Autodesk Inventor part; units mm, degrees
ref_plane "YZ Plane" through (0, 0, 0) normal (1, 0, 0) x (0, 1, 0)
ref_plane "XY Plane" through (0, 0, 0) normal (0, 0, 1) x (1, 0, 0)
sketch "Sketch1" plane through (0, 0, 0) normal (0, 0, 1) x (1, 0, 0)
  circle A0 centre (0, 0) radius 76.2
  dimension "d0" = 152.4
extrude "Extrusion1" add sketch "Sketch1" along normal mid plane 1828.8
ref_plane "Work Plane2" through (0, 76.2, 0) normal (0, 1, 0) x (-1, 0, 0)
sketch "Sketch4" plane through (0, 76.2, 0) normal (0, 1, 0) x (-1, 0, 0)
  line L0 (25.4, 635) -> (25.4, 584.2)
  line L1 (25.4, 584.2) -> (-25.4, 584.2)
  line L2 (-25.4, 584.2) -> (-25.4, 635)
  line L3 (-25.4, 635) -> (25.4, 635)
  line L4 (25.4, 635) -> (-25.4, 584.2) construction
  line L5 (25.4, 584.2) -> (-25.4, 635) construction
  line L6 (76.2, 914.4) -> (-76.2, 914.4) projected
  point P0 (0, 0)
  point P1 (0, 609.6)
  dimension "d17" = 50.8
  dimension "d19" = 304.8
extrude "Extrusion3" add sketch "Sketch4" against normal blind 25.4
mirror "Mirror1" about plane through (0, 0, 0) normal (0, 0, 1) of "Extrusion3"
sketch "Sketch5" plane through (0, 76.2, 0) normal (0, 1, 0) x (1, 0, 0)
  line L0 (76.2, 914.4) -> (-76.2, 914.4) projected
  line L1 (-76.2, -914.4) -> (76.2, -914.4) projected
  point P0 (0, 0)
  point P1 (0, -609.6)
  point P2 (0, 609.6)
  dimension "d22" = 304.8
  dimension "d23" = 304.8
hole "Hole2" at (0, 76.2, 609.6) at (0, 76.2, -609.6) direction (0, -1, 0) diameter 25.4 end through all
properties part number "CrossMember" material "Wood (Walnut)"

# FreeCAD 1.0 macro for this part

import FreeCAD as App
import Part
import Sketcher
Q = App.Units.Quantity

doc = App.newDocument("Part")
params = doc.addObject("Spreadsheet::Sheet", "Params")
for row, (alias, value) in enumerate([
    ("sketch1_diameter", "6 in"),
    ("pad1_length", "72 in"),
    ("sketch2_width", "2 in"),
    ("pad2_length", "1 in"),
    ("sketch3_diameter", "1 in"),
    ("hole_diameter", "1 in"),
], start=1):
    params.set(f"A{row}", alias)
    params.set(f"B{row}", "=" + value)
    params.setAlias(f"B{row}", alias)

body = doc.addObject("PartDesign::Body", "Body")

sketch1 = body.newObject("Sketcher::SketchObject", "Sketch")
sketch1.AttachmentSupport = (doc.getObject("XY_Plane"), [""])
sketch1.MapMode = "FlatFace"
sketch1.addGeometry(Part.Circle(App.Vector(0, 0, 0), App.Vector(0, 0, 1), 76), False)
sketch1.addConstraint([
    Sketcher.Constraint("Coincident", 0, 3, -1, 1),
    Sketcher.Constraint("Diameter", 0, Q("6 in")),
])
sketch1.setExpression("Constraints[1]", "Params.sketch1_diameter")
pad1 = body.newObject("PartDesign::Pad", "Pad")
pad1.Profile = sketch1
pad1.setExpression("Length", "Params.pad1_length")
pad1.Midplane = True

sketch2 = body.newObject("Sketcher::SketchObject", "Sketch001")
sketch2.AttachmentSupport = (doc.getObject("XZ_Plane"), [""])
sketch2.MapMode = "FlatFace"
sketch2.AttachmentOffset = App.Placement(App.Vector(0, 0, -3 * 25.4), App.Rotation())
sketch2.addGeometry([
    Part.LineSegment(App.Vector(-25, 584, 0), App.Vector(-25, 635, 0)),
    Part.LineSegment(App.Vector(-25, 635, 0), App.Vector(25, 635, 0)),
    Part.LineSegment(App.Vector(25, 635, 0), App.Vector(25, 584, 0)),
    Part.LineSegment(App.Vector(25, 584, 0), App.Vector(-25, 584, 0)),
], False)
sketch2.addConstraint([
    Sketcher.Constraint("Coincident", 0, 2, 1, 1),
    Sketcher.Constraint("Coincident", 1, 2, 2, 1),
    Sketcher.Constraint("Coincident", 2, 2, 3, 1),
    Sketcher.Constraint("Coincident", 3, 2, 0, 1),
    Sketcher.Constraint("Vertical", 0),
    Sketcher.Constraint("Horizontal", 1),
    Sketcher.Constraint("Vertical", 2),
    Sketcher.Constraint("Horizontal", 3),
    Sketcher.Constraint("Equal", 3, 0),
    Sketcher.Constraint("DistanceX", 1, 1, 1, 2, Q("2 in")),
    Sketcher.Constraint("DistanceX", 0, 2, -1, 1, Q("1 in")),
    Sketcher.Constraint("DistanceY", -1, 1, 0, 2, Q("25 in")),
])
sketch2.setExpression("Constraints[9]", "Params.sketch2_width")
pad2 = body.newObject("PartDesign::Pad", "Pad001")
pad2.Profile = sketch2
pad2.setExpression("Length", "Params.pad2_length")
doc.recompute()

mirrored = body.newObject("PartDesign::Mirrored", "Mirrored")
mirrored.Originals = [pad2]
mirrored.MirrorPlane = (doc.getObject("XY_Plane"), [""])
body.Tip = mirrored

sketch3 = body.newObject("Sketcher::SketchObject", "Sketch002")
sketch3.AttachmentSupport = (doc.getObject("XZ_Plane"), [""])
sketch3.MapMode = "FlatFace"
sketch3.AttachmentOffset = App.Placement(App.Vector(0, 0, -3 * 25.4), App.Rotation())
sketch3.addGeometry([
    Part.Circle(App.Vector(0, 610, 0), App.Vector(0, 0, 1), 13),
    Part.Circle(App.Vector(0, -610, 0), App.Vector(0, 0, 1), 13),
], False)
sketch3.addConstraint([
    Sketcher.Constraint("Equal", 0, 1),
    Sketcher.Constraint("Symmetric", 0, 3, 1, 3, -1, 1),
    Sketcher.Constraint("PointOnObject", 0, 3, -2),
    Sketcher.Constraint("Diameter", 0, Q("1 in")),
    Sketcher.Constraint("DistanceY", -1, 1, 0, 3, Q("24 in")),
])
sketch3.setExpression("Constraints[3]", "Params.sketch3_diameter")
doc.recompute()
hole = body.newObject("PartDesign::Hole", "Hole")
hole.Profile = sketch3
hole.ThreadType = "None"
hole.setExpression("Diameter", "Params.hole_diameter")
hole.DepthType = "ThroughAll"
hole.Reversed = True

doc.recompute()
